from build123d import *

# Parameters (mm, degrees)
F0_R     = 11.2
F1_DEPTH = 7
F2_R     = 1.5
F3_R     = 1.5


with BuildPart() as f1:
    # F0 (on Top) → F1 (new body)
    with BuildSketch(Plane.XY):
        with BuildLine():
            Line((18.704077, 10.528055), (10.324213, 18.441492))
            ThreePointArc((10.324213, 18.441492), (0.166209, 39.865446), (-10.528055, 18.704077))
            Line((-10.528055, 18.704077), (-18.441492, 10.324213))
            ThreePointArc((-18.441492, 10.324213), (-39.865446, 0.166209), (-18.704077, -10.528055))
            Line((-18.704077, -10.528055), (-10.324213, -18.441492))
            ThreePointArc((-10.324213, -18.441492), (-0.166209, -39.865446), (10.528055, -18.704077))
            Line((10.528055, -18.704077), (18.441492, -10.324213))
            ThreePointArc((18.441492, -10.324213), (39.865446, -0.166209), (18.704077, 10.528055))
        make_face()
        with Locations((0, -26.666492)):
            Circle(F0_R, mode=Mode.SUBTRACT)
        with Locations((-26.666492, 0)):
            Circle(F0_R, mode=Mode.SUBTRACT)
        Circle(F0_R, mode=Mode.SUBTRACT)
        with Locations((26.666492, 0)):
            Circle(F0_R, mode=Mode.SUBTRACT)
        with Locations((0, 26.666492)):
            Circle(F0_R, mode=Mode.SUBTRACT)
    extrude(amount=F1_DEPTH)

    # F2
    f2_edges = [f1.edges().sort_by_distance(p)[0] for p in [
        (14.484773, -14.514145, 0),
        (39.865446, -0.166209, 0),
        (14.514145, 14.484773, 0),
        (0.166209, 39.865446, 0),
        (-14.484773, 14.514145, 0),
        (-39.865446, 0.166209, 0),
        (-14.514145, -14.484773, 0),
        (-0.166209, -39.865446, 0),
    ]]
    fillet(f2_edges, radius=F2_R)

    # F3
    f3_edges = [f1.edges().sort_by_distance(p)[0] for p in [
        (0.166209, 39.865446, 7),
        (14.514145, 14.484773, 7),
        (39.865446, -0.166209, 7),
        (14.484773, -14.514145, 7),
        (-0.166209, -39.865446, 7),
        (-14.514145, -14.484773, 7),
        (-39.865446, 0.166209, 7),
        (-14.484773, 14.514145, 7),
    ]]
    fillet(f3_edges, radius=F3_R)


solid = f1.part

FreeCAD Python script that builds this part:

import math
import FreeCAD as App
import Part
import Sketcher


def edges_at(feature, points):
    """Names of the edges that pass closest to the given points."""
    edges = feature.Shape.Edges
    near = lambda p: min(range(len(edges)), key=lambda i: edges[i].distToShape(Part.Vertex(*p))[0])
    return sorted({f"Edge{near(p) + 1}" for p in points})

doc = App.newDocument("Part")
body = doc.addObject("PartDesign::Body", "Body")

# Sketch on XY plane
sketch1 = doc.addObject("Sketcher::SketchObject", "Sketch")
body.addObject(sketch1)
sketch1.AttachmentSupport = (doc.XY_Plane, [""])
sketch1.MapMode = "FlatFace"
sketch1.addGeometry([
    Part.LineSegment(App.Vector(19, 11, 0), App.Vector(10, 18, 0)),  # 0
    Part.ArcOfCircle(Part.Circle(App.Vector(0, 27, 0), App.Vector(0, 0, 1), 13), math.radians(-39), math.radians(217)),  # 1
    Part.LineSegment(App.Vector(-11, 19, 0), App.Vector(-18, 10, 0)),  # 2
    Part.ArcOfCircle(Part.Circle(App.Vector(-27, 0, 0), App.Vector(0, 0, 1), 13), math.radians(51), math.radians(307)),  # 3
    Part.LineSegment(App.Vector(-19, -11, 0), App.Vector(-10, -18, 0)),  # 4
    Part.ArcOfCircle(Part.Circle(App.Vector(0, -27, 0), App.Vector(0, 0, 1), 13), math.radians(141), math.radians(397)),  # 5
    Part.LineSegment(App.Vector(11, -19, 0), App.Vector(18, -10, 0)),  # 6
    Part.ArcOfCircle(Part.Circle(App.Vector(27, 0, 0), App.Vector(0, 0, 1), 13), math.radians(-129), math.radians(127)),  # 7
    Part.Circle(App.Vector(0, -27, 0), App.Vector(0, 0, 1), 11),  # 8
    Part.Circle(App.Vector(-27, 0, 0), App.Vector(0, 0, 1), 11),  # 9
    Part.Circle(App.Vector(0, 0, 0), App.Vector(0, 0, 1), 11),  # 10
    Part.Circle(App.Vector(27, 0, 0), App.Vector(0, 0, 1), 11),  # 11
    Part.Circle(App.Vector(0, 27, 0), App.Vector(0, 0, 1), 11),  # 12
], False)
sketch1.addConstraint([
    Sketcher.Constraint("Coincident", 0, 2, 1, 1),
    Sketcher.Constraint("Coincident", 1, 2, 2, 1),
    Sketcher.Constraint("Coincident", 2, 2, 3, 1),
    Sketcher.Constraint("Coincident", 3, 2, 4, 1),
    Sketcher.Constraint("Coincident", 4, 2, 5, 1),
    Sketcher.Constraint("Coincident", 5, 2, 6, 1),
    Sketcher.Constraint("Coincident", 6, 2, 7, 1),
    Sketcher.Constraint("Coincident", 7, 2, 0, 1),
    Sketcher.Constraint("Coincident", 10, 3, -1, 1),
    Sketcher.Constraint("Coincident", 8, 3, 5, 3),
    Sketcher.Constraint("Coincident", 9, 3, 3, 3),
    Sketcher.Constraint("Coincident", 11, 3, 7, 3),
    Sketcher.Constraint("Coincident", 12, 3, 1, 3),
    Sketcher.Constraint("Equal", 1, 3),
    Sketcher.Constraint("Equal", 3, 5),
    Sketcher.Constraint("Equal", 5, 7),
    Sketcher.Constraint("Equal", 8, 9),
    Sketcher.Constraint("Equal", 9, 10),
    Sketcher.Constraint("Equal", 10, 11),
    Sketcher.Constraint("Equal", 11, 12),
    Sketcher.Constraint("Symmetric", 1, 3, 5, 3, -1, 1),
    Sketcher.Constraint("Symmetric", 3, 3, 7, 3, -1, 1),
    Sketcher.Constraint("PointOnObject", 1, 3, -2),
    Sketcher.Constraint("PointOnObject", 3, 3, -1),
    Sketcher.Constraint("Perpendicular", 0, 2),
    Sketcher.Constraint("Perpendicular", 2, 4),
    Sketcher.Constraint("Perpendicular", 4, 6),
    Sketcher.Constraint("Equal", 0, 2),
    Sketcher.Constraint("Equal", 2, 4),
    Sketcher.Constraint("Equal", 4, 6),
    Sketcher.Constraint("Diameter", 8, 22.4),
    Sketcher.Constraint("Radius", 1, 13.2),
    Sketcher.Constraint("DistanceY", 0, 2, 12, 3, 8.225),
    Sketcher.Constraint("DistanceX", 9, 3, 2, 2, 8.225),
    Sketcher.Constraint("DistanceY", -1, 1, 0, 2, 18.441492),
    Sketcher.Constraint("DistanceX", 1, 2, 0, 2, 20.852268),
])
pad1 = doc.addObject("PartDesign::Pad", "Pad")
body.addObject(pad1)
pad1.Profile = sketch1
pad1.Length = 7
doc.recompute()

fillet = doc.addObject("PartDesign::Fillet", "Fillet")
body.addObject(fillet)
fillet.Base = (pad1, edges_at(pad1, [
    (14.485, -14.514, 0),
    (39.865, -0.166, 0),
    (14.514, 14.485, 0),
    (0.166, 39.865, 0),
    (-14.485, 14.514, 0),
    (-39.865, 0.166, 0),
    (-14.514, -14.485, 0),
    (-0.166, -39.865, 0),
]))
fillet.Radius = 1.5
doc.recompute()

fillet2 = doc.addObject("PartDesign::Fillet", "Fillet001")
body.addObject(fillet2)
fillet2.Base = (fillet, edges_at(fillet, [
    (0.166, 39.865, 7),
    (14.514, 14.485, 7),
    (39.865, -0.166, 7),
    (14.485, -14.514, 7),
    (-0.166, -39.865, 7),
    (-14.514, -14.485, 7),
    (-39.865, 0.166, 7),
    (-14.485, 14.514, 7),
]))
fillet2.Radius = 1.5

doc.recompute()
